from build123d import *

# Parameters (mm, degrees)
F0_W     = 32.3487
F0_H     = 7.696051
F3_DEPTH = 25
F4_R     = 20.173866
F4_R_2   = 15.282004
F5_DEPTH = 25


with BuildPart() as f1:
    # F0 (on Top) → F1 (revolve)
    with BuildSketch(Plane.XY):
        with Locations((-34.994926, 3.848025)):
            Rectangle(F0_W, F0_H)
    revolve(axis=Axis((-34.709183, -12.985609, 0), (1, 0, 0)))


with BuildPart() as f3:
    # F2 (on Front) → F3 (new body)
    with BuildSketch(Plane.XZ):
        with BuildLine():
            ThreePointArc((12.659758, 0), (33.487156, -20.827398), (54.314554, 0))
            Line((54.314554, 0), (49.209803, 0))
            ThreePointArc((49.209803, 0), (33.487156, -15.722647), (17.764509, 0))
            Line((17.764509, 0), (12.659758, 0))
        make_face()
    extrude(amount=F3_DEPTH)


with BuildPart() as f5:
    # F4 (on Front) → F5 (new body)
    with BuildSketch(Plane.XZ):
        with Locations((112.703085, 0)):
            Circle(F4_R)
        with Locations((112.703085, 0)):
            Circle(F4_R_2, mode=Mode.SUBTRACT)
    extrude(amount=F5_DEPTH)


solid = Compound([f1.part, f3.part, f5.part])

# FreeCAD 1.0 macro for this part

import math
import FreeCAD as App
import Part
import Sketcher


def add_polygon(sketch, points):
    """Adds a closed chain of lines whose ends are joined by coincident constraints."""
    first, n = sketch.GeometryCount, len(points)
    for a, b in zip(points, points[1:] + points[:1]):
        sketch.addGeometry(Part.LineSegment(App.Vector(*a, 0), App.Vector(*b, 0)), False)
    for i in range(n):
        sketch.addConstraint(Sketcher.Constraint("Coincident", first + i, 2, first + (i + 1) % n, 1))

doc = App.newDocument("Part")
body = doc.addObject("PartDesign::Body", "Body")

sketch1 = doc.addObject("Sketcher::SketchObject", "Sketch")
body.addObject(sketch1)
sketch1.AttachmentSupport = (doc.XY_Plane, [""])
sketch1.MapMode = "FlatFace"
add_polygon(sketch1, [(-51, 8), (-51, 0), (-19, 0), (-19, 8)])
sketch1.addGeometry(Part.LineSegment(App.Vector(-51, -13, 0), App.Vector(-19, -13, 0)), True)
sketch1.addConstraint(Sketcher.Constraint("Vertical", 0))
sketch1.addConstraint(Sketcher.Constraint("Horizontal", 1))
sketch1.addConstraint(Sketcher.Constraint("Vertical", 2))
sketch1.addConstraint(Sketcher.Constraint("Horizontal", 3))
sketch1.addConstraint(Sketcher.Constraint("Horizontal", 4))
sketch1.addConstraint(Sketcher.Constraint("PointOnObject", 0, 2, -1))
sketch1.addConstraint(Sketcher.Constraint("Vertical", 3, 2, 4, 1))
sketch1.addConstraint(Sketcher.Constraint("Vertical", 2, 2, 4, 2))
sketch1.addConstraint(Sketcher.Constraint("DistanceX", 1, 1, 1, 2, 32.3487))
sketch1.addConstraint(Sketcher.Constraint("DistanceY", 0, 2, 0, 1, 7.696051))
sketch1.addConstraint(Sketcher.Constraint("DistanceY", 4, 1, -1, 1, 12.985609))
sketch1.addConstraint(Sketcher.Constraint("DistanceX", 0, 2, -1, 1, 51.169276))
revolution = doc.addObject("PartDesign::Revolution", "Revolution")
body.addObject(revolution)
revolution.Profile = sketch1
revolution.ReferenceAxis = (sketch1, ["Axis0"])
revolution.Angle = 360
body2 = doc.addObject("PartDesign::Body", "Body001")

sketch2 = doc.addObject("Sketcher::SketchObject", "Sketch001")
body2.addObject(sketch2)
sketch2.AttachmentSupport = (doc.getObject("XZ_Plane001"), [""])
sketch2.MapMode = "FlatFace"
sketch2.addGeometry(Part.ArcOfCircle(Part.Circle(App.Vector(33, 0, 0), App.Vector(0, 0, 1), 21), math.radians(180), math.radians(360)), False)
sketch2.addGeometry(Part.LineSegment(App.Vector(54, 0, 0), App.Vector(49, 0, 0)), False)
sketch2.addGeometry(Part.ArcOfCircle(Part.Circle(App.Vector(33, 0, 0), App.Vector(0, 0, 1), 16), math.radians(180), math.radians(360)), False)
sketch2.addGeometry(Part.LineSegment(App.Vector(18, 0, 0), App.Vector(13, 0, 0)), False)
sketch2.addConstraint(Sketcher.Constraint("Coincident", 0, 2, 1, 1))
sketch2.addConstraint(Sketcher.Constraint("Coincident", 1, 2, 2, 2))
sketch2.addConstraint(Sketcher.Constraint("Coincident", 2, 1, 3, 1))
sketch2.addConstraint(Sketcher.Constraint("Coincident", 3, 2, 0, 1))
sketch2.addConstraint(Sketcher.Constraint("Horizontal", 1))
sketch2.addConstraint(Sketcher.Constraint("Horizontal", 3))
sketch2.addConstraint(Sketcher.Constraint("Coincident", 2, 3, 0, 3))
sketch2.addConstraint(Sketcher.Constraint("PointOnObject", 0, 3, -1))
sketch2.addConstraint(Sketcher.Constraint("PointOnObject", 0, 2, -1))
sketch2.addConstraint(Sketcher.Constraint("PointOnObject", 2, 1, -1))
sketch2.addConstraint(Sketcher.Constraint("Radius", 0, 20.827398))
sketch2.addConstraint(Sketcher.Constraint("Radius", 2, 15.722647))
sketch2.addConstraint(Sketcher.Constraint("DistanceX", -1, 1, 2, 1, 17.764509))
pad1 = doc.addObject("PartDesign::Pad", "Pad")
body2.addObject(pad1)
pad1.Profile = sketch2
pad1.Length = 25
body3 = doc.addObject("PartDesign::Body", "Body002")

sketch3 = doc.addObject("Sketcher::SketchObject", "Sketch002")
body3.addObject(sketch3)
sketch3.AttachmentSupport = (doc.getObject("XZ_Plane002"), [""])
sketch3.MapMode = "FlatFace"
sketch3.addGeometry(Part.Circle(App.Vector(113, 0, 0), App.Vector(0, 0, 1), 20), False)
sketch3.addGeometry(Part.Circle(App.Vector(113, 0, 0), App.Vector(0, 0, 1), 15), False)
sketch3.addConstraint(Sketcher.Constraint("Coincident", 1, 3, 0, 3))
sketch3.addConstraint(Sketcher.Constraint("PointOnObject", 0, 3, -1))
sketch3.addConstraint(Sketcher.Constraint("Diameter", 1, 30.564008))
sketch3.addConstraint(Sketcher.Constraint("Diameter", 0, 40.347732))
sketch3.addConstraint(Sketcher.Constraint("DistanceX", -1, 1, 0, 3, 112.703085))
pad2 = doc.addObject("PartDesign::Pad", "Pad001")
body3.addObject(pad2)
pad2.Profile = sketch3
pad2.Length = 25

doc.recompute()
